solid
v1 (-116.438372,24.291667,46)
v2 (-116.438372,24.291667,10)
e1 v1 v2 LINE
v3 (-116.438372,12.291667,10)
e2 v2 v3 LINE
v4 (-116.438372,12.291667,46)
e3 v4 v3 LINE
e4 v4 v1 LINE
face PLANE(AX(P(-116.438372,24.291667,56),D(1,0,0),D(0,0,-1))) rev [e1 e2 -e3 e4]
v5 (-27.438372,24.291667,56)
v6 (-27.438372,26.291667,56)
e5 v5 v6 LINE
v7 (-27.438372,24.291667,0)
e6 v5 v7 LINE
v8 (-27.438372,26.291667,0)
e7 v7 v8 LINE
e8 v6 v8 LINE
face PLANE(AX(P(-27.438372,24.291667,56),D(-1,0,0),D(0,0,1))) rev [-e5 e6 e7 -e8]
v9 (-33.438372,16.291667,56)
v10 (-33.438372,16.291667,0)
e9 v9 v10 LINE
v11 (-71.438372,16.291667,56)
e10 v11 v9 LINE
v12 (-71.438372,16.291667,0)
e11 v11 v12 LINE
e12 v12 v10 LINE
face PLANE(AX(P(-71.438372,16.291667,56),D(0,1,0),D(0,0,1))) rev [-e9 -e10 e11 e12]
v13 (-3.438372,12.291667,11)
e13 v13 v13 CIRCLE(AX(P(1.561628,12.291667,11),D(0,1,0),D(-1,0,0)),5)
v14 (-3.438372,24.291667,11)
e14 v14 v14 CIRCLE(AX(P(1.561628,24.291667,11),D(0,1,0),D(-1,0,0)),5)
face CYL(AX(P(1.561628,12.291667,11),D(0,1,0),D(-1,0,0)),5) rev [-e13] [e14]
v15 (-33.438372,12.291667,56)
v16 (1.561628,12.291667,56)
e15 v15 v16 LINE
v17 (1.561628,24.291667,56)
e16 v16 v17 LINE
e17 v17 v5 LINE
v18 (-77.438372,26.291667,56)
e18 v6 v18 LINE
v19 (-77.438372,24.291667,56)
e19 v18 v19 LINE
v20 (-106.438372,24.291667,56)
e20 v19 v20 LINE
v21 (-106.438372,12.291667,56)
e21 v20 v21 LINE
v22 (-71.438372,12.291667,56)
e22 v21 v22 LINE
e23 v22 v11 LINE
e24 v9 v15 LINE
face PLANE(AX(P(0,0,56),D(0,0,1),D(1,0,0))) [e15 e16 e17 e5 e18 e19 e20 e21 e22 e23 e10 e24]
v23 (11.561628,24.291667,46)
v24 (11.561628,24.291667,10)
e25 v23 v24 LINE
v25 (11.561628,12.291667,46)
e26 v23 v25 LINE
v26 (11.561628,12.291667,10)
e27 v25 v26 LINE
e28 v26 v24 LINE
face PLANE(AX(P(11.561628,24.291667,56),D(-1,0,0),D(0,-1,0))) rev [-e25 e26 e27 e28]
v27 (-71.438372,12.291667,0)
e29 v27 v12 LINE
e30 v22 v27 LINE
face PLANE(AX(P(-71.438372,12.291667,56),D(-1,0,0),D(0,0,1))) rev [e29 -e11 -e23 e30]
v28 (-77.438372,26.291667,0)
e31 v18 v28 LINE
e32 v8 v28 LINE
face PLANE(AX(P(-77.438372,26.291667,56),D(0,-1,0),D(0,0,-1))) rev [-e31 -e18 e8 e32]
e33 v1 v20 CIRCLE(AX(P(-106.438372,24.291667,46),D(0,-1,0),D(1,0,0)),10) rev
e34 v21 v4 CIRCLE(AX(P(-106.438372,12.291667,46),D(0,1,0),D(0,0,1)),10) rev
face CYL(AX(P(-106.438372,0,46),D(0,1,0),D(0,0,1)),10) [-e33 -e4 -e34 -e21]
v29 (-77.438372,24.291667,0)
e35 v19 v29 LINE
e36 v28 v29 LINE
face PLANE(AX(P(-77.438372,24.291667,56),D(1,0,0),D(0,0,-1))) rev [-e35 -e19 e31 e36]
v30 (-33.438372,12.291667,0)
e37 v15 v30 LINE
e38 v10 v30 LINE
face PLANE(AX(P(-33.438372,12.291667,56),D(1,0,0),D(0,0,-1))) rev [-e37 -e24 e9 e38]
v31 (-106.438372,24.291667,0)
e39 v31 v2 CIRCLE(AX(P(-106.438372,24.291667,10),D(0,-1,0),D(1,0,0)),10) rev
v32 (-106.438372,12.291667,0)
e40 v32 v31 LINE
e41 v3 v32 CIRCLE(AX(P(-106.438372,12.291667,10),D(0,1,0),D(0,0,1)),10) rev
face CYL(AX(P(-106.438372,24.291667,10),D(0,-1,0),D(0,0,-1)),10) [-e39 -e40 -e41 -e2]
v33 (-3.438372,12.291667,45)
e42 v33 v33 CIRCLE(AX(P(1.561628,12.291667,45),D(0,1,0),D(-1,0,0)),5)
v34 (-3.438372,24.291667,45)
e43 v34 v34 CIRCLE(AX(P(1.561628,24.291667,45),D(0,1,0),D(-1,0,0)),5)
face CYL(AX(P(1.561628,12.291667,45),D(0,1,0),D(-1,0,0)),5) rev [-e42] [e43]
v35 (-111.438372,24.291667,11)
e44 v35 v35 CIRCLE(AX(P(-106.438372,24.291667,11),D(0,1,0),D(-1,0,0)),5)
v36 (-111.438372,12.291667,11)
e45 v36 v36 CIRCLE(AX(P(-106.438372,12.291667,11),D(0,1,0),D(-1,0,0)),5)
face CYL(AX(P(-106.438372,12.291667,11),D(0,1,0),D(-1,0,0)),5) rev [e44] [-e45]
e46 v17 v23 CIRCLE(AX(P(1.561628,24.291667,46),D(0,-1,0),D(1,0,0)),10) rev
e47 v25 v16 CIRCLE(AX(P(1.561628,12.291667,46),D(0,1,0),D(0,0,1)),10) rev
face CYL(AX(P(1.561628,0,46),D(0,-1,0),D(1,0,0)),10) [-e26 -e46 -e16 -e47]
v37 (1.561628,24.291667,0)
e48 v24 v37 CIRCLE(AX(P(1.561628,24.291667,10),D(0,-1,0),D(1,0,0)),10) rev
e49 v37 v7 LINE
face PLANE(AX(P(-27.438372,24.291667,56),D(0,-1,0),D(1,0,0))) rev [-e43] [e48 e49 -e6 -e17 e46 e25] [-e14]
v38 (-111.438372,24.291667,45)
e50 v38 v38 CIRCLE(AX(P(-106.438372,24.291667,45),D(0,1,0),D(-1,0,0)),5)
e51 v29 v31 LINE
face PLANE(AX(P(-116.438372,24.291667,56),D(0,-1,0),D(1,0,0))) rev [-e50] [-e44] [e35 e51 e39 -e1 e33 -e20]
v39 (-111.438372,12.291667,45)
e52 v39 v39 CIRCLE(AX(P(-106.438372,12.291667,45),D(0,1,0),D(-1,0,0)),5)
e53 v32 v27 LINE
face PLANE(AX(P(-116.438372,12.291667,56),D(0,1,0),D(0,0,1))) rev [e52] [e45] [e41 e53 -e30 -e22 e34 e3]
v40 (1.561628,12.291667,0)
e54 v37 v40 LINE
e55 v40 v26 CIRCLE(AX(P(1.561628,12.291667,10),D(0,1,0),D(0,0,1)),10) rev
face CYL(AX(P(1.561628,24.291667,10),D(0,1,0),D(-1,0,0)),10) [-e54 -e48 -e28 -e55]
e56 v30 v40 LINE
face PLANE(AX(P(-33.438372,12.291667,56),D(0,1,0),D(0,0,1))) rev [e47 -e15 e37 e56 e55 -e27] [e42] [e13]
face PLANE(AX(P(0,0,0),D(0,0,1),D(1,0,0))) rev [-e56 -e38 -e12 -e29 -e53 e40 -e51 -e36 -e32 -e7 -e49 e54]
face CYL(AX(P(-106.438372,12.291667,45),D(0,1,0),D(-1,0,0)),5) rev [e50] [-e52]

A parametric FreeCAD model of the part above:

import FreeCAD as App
import Part
import Sketcher
from FreeCAD import Vector


def edges_at(feature, points):
    """Names of the edges that pass closest to the given points."""
    edges = feature.Shape.Edges
    near = lambda p: min(range(len(edges)), key=lambda i: edges[i].distToShape(Part.Vertex(*p))[0])
    return sorted({f"Edge{near(p) + 1}" for p in points})


def add_polygon(sketch, points):
    """Adds a closed chain of lines whose ends are joined by coincident constraints."""
    first, n = sketch.GeometryCount, len(points)
    for a, b in zip(points, points[1:] + points[:1]):
        sketch.addGeometry(Part.LineSegment(App.Vector(*a, 0), App.Vector(*b, 0)), False)
    for i in range(n):
        sketch.addConstraint(Sketcher.Constraint("Coincident", first + i, 2, first + (i + 1) % n, 1))

doc = App.newDocument("Part")
body = doc.addObject("PartDesign::Body", "Body")

# Sketch on XY plane
sketch1 = doc.addObject("Sketcher::SketchObject", "Sketch")
body.addObject(sketch1)
sketch1.AttachmentSupport = (doc.XY_Plane, [""])
sketch1.MapMode = "FlatFace"
add_polygon(sketch1, [(-33.4, 12.3), (11.6, 12.3), (11.6, 24.3), (-27.4, 24.3), (-27.4, 26.3), (-77.4, 26.3), (-77.4, 24.3), (-116.4, 24.3), (-116.4, 12.3), (-71.4, 12.3), (-71.4, 16.3), (-33.4, 16.3)])  # lines 0-11
sketch1.addConstraint([
    Sketcher.Constraint("Horizontal", 0),
    Sketcher.Constraint("Vertical", 1),
    Sketcher.Constraint("Horizontal", 2),
    Sketcher.Constraint("Vertical", 3),
    Sketcher.Constraint("Horizontal", 4),
    Sketcher.Constraint("Vertical", 5),
    Sketcher.Constraint("Horizontal", 6),
    Sketcher.Constraint("Vertical", 7),
    Sketcher.Constraint("Horizontal", 8),
    Sketcher.Constraint("Vertical", 9),
    Sketcher.Constraint("Horizontal", 10),
    Sketcher.Constraint("Vertical", 11),
    Sketcher.Constraint("Horizontal", 2, 2, 5, 2),
    Sketcher.Constraint("Horizontal", 0, 2, 7, 2),
    Sketcher.Constraint("Equal", 2, 6),
    Sketcher.Constraint("Equal", 0, 8),
    Sketcher.Constraint("DistanceX", 0, 1, 0, 2, 45.0),
    Sketcher.Constraint("DistanceX", 2, 2, 2, 1, 39.0),
    Sketcher.Constraint("DistanceX", 4, 2, 4, 1, 50.0),
    Sketcher.Constraint("DistanceY", 1, 1, 1, 2, 12.0),
    Sketcher.Constraint("DistanceY", 3, 1, 3, 2, 2.0),
    Sketcher.Constraint("DistanceY", 9, 1, 9, 2, 4.0),
    Sketcher.Constraint("DistanceX", -1, 1, 0, 2, 11.561628),
    Sketcher.Constraint("DistanceY", -1, 1, 0, 2, 12.291667),
])
pad1 = doc.addObject("PartDesign::Pad", "Pad")
body.addObject(pad1)
pad1.Profile = sketch1
pad1.Length = 56
doc.recompute()

fillet = doc.addObject("PartDesign::Fillet", "Fillet")
body.addObject(fillet)
fillet.Base = (pad1, edges_at(pad1, [
    (11.562, 18.292, 0),
    (-116.438, 18.292, 0),
    (11.562, 18.292, 56),
    (-116.438, 18.292, 56),
]))
fillet.Radius = 10

# Sketch on XZ plane
sketch2 = doc.addObject("Sketcher::SketchObject", "Sketch001")
body.addObject(sketch2)
sketch2.AttachmentSupport = (doc.XZ_Plane, [""])
sketch2.MapMode = "FlatFace"
sketch2.AttachmentOffset = App.Placement(Vector(0, 0, -24.291667), App.Rotation())
sketch2.addGeometry([
    Part.Circle(Vector(-106, 11, 0), Vector(0, 0, 1), 5),
    Part.Circle(Vector(-106, 45, 0), Vector(0, 0, 1), 5),
    Part.Circle(Vector(2, 45, 0), Vector(0, 0, 1), 5),
    Part.Circle(Vector(2, 11, 0), Vector(0, 0, 1), 5),
], False)
sketch2.addConstraint([
    Sketcher.Constraint("Equal", 0, 1),
    Sketcher.Constraint("Equal", 1, 2),
    Sketcher.Constraint("Equal", 2, 3),
    Sketcher.Constraint("Horizontal", 1, 3, 2, 3),
    Sketcher.Constraint("Horizontal", 0, 3, 3, 3),
    Sketcher.Constraint("Vertical", 0, 3, 1, 3),
    Sketcher.Constraint("Vertical", 2, 3, 3, 3),
    Sketcher.Constraint("Diameter", 0, 10.0),
    Sketcher.Constraint("DistanceY", -1, 1, 0, 3, 11.0),
    Sketcher.Constraint("DistanceY", -1, 1, 1, 3, 45.0),
    Sketcher.Constraint("DistanceX", 1, 3, 2, 3, 108.0),
    Sketcher.Constraint("DistanceX", 0, 3, -1, 1, 106.438372),
])
pocket1 = doc.addObject("PartDesign::Pocket", "Pocket")
body.addObject(pocket1)
pocket1.Profile = sketch2
pocket1.Type = "ThroughAll"
pocket1.Reversed = True

doc.recompute()
